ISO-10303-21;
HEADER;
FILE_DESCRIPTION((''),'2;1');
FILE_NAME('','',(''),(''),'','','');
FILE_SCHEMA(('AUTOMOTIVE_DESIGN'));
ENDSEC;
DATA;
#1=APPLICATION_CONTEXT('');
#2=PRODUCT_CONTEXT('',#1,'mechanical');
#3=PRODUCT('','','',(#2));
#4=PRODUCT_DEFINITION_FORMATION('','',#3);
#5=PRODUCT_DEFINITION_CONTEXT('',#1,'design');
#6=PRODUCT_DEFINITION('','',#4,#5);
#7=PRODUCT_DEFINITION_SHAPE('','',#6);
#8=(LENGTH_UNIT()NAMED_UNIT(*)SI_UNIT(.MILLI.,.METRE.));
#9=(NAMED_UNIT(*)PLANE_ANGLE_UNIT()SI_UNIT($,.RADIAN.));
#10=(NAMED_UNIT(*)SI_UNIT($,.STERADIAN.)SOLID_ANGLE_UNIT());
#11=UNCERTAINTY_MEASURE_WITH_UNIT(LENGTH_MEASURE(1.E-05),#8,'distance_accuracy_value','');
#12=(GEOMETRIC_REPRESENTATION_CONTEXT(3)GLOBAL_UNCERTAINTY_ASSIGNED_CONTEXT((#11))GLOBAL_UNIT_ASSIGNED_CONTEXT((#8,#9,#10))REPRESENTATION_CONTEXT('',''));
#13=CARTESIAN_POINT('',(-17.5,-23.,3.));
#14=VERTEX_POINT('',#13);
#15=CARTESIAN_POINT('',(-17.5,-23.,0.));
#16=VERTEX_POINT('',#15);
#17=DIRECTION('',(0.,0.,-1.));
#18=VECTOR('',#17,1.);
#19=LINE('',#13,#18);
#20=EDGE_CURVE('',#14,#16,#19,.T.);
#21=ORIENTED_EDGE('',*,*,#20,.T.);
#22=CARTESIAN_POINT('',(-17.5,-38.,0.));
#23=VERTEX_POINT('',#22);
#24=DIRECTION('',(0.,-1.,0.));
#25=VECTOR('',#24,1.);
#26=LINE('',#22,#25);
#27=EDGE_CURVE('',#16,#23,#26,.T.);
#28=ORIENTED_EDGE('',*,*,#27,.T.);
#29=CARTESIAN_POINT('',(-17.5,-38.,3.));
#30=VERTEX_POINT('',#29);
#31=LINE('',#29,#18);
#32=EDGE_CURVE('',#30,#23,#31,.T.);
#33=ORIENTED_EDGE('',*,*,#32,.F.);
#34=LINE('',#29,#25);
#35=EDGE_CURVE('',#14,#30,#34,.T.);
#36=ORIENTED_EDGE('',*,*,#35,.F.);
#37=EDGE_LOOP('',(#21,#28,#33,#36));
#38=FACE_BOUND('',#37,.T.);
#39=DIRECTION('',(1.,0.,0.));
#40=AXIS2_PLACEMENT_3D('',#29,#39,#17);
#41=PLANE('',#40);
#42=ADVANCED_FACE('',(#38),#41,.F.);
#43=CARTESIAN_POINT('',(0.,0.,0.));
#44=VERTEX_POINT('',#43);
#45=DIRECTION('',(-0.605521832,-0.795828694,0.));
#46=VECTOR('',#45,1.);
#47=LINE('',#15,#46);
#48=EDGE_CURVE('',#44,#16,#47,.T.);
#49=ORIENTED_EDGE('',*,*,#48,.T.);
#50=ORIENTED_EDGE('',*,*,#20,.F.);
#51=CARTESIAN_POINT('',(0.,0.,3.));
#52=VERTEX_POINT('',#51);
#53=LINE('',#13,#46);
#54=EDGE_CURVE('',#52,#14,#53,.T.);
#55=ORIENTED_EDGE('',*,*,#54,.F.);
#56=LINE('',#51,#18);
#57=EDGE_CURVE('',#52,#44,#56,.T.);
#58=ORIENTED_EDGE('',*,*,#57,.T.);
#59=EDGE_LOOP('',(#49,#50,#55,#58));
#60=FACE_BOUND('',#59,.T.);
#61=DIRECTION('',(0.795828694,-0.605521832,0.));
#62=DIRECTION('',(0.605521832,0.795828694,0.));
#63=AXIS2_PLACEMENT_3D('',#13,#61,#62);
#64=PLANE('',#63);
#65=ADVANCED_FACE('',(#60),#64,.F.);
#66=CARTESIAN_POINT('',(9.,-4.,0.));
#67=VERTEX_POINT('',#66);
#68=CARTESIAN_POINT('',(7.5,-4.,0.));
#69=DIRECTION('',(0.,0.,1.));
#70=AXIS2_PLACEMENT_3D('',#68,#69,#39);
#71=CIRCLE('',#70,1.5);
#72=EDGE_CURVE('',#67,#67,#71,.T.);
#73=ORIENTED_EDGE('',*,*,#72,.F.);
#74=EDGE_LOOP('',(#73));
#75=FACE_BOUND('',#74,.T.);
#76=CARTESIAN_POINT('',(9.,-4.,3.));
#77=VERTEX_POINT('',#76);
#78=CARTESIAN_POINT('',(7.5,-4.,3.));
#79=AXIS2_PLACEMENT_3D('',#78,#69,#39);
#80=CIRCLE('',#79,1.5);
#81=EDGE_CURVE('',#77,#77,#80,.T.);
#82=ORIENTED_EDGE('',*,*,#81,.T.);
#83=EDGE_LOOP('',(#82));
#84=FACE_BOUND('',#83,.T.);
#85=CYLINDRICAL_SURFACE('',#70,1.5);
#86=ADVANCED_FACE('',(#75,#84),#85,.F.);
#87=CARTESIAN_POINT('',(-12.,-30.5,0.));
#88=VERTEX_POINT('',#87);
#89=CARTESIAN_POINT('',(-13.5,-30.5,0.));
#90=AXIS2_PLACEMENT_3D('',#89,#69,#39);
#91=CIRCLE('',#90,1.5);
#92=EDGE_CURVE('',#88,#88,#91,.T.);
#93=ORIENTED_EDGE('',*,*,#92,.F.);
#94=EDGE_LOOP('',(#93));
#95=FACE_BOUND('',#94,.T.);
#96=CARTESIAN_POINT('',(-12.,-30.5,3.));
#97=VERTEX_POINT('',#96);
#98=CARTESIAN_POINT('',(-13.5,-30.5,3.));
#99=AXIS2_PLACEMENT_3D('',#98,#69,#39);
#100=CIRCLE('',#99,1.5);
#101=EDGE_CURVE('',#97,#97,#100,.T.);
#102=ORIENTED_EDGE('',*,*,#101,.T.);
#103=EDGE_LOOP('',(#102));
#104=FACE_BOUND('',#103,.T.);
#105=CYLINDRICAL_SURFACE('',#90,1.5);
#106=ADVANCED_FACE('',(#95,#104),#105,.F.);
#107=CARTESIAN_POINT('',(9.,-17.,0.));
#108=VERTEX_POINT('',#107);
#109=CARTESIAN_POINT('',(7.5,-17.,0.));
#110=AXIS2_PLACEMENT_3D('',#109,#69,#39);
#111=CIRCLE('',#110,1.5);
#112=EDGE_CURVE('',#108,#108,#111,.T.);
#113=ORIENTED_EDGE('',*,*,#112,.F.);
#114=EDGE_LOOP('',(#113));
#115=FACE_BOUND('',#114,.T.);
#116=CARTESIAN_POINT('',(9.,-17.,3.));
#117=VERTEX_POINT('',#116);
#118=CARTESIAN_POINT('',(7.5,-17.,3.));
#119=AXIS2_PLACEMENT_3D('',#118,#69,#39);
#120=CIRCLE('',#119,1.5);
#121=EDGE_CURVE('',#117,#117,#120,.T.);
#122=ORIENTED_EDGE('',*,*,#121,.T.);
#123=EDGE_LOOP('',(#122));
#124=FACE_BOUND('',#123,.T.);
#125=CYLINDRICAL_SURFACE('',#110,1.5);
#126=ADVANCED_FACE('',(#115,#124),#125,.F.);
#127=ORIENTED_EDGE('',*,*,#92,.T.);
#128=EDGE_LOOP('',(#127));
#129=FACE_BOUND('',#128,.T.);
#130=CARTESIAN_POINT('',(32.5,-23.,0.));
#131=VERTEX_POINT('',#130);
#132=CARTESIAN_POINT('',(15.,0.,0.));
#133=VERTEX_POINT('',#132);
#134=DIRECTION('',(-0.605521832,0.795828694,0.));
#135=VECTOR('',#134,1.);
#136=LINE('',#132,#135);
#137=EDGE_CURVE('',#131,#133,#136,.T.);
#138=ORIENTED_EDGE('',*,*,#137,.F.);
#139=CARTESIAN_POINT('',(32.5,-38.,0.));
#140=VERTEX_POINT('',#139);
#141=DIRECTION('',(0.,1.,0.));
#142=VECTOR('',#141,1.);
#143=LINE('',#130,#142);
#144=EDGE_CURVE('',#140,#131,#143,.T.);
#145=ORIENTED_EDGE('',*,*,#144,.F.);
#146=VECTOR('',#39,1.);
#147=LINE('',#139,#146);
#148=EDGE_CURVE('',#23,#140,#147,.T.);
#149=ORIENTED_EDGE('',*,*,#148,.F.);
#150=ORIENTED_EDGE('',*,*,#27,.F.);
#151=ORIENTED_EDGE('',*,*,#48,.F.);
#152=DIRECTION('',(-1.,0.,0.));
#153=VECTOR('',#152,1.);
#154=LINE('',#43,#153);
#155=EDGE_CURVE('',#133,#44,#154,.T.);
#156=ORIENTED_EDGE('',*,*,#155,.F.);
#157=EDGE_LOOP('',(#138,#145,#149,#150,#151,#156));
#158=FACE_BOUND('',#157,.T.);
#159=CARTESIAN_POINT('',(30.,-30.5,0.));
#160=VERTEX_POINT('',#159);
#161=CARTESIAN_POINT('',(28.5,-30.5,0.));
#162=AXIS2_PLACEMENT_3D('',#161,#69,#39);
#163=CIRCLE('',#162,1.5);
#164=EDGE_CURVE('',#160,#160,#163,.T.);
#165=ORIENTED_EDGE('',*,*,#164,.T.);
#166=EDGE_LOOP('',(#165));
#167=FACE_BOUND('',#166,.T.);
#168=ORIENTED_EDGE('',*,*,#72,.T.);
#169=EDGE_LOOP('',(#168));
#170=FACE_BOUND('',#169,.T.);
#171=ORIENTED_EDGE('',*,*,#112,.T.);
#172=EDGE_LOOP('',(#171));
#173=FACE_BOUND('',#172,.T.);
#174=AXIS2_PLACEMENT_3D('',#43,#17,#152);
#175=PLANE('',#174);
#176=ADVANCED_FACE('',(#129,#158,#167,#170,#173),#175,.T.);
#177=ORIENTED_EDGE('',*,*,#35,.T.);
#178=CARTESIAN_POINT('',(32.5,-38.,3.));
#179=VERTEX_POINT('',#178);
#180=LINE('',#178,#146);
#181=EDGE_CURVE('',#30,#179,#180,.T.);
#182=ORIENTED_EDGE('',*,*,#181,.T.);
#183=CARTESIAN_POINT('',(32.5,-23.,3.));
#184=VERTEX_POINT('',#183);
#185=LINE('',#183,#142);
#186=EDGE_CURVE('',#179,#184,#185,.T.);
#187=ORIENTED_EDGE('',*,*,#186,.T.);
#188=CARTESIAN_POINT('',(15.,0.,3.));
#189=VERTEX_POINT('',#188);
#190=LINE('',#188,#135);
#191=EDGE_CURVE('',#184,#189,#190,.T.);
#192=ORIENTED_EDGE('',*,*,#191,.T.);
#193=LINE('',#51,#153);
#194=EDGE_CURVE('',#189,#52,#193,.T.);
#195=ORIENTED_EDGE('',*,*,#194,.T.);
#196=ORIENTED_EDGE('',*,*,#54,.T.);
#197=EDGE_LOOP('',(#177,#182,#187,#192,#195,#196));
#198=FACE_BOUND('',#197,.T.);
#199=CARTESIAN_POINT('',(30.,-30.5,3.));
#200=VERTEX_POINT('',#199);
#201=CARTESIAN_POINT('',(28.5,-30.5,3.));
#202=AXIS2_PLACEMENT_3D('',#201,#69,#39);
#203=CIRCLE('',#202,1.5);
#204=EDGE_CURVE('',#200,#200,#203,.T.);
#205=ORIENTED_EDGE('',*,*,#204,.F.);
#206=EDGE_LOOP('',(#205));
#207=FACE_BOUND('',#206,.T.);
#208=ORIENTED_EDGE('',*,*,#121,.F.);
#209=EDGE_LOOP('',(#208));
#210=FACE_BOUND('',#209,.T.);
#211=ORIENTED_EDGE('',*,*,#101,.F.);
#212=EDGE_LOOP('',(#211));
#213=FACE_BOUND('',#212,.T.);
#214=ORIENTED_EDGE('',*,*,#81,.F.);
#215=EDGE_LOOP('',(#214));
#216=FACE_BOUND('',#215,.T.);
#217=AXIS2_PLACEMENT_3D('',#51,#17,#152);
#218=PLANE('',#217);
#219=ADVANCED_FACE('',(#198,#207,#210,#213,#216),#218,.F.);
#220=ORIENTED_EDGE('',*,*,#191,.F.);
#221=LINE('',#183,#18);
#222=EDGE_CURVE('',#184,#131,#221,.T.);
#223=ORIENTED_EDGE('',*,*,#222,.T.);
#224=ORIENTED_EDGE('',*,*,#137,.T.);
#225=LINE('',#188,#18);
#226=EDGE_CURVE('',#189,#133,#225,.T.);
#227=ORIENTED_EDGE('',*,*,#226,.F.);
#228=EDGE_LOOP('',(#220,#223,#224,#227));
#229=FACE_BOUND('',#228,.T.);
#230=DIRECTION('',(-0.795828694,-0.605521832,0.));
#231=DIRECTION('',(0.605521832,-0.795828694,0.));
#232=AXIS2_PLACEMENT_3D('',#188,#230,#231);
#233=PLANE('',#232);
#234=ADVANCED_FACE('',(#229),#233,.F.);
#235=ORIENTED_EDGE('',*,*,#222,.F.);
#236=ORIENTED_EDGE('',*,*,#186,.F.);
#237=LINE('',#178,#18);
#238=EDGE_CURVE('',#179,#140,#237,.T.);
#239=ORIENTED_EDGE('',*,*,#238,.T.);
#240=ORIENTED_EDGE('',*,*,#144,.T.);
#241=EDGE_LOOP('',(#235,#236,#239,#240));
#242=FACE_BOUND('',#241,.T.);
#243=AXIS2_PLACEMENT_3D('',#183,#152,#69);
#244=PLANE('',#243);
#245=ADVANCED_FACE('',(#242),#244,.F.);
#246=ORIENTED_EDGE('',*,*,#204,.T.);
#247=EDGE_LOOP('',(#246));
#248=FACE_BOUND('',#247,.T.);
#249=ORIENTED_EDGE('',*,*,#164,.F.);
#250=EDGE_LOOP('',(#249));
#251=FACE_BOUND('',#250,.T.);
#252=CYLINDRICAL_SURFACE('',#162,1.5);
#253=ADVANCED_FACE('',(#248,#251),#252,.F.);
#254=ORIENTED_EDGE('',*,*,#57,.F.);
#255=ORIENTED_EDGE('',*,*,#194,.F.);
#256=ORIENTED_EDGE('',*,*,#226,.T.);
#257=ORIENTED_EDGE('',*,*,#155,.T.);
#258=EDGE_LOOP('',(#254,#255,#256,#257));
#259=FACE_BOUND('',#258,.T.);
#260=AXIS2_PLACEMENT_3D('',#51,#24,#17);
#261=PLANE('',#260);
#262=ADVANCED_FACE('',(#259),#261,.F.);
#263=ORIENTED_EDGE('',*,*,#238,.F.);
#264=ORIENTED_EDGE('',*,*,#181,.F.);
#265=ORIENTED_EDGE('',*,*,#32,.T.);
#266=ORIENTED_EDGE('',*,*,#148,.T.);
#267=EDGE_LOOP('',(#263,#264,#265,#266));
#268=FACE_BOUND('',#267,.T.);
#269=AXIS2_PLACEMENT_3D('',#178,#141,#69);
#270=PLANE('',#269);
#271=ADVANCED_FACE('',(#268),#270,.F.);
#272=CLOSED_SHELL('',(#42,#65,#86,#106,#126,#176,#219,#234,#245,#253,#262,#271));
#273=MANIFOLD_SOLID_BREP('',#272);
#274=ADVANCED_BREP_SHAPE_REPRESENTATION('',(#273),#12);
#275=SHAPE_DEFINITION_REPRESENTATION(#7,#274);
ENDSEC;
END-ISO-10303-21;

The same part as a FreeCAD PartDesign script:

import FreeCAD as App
import Part
import Sketcher
from FreeCAD import Vector
Q = App.Units.Quantity


def add_polygon(sketch, points):
    """Adds a closed chain of lines whose ends are joined by coincident constraints."""
    first, n = sketch.GeometryCount, len(points)
    for a, b in zip(points, points[1:] + points[:1]):
        sketch.addGeometry(Part.LineSegment(App.Vector(*a, 0), App.Vector(*b, 0)), False)
    for i in range(n):
        sketch.addConstraint(Sketcher.Constraint("Coincident", first + i, 2, first + (i + 1) % n, 1))

doc = App.newDocument("Part")
params = doc.addObject("Spreadsheet::Sheet", "Params")
for row, (alias, value) in enumerate([
    ("sketch1_width", "15 mm"),
    ("sketch1_width2", "50 mm"),
    ("pad1_length", "3 mm"),
    ("sketch2_diameter", "3 mm"),
    ("pocket1_length", "3 mm"),
], start=1):
    params.set(f"A{row}", alias)
    params.set(f"B{row}", "=" + value)
    params.setAlias(f"B{row}", alias)

body = doc.addObject("PartDesign::Body", "Body")

# Sketch on XY plane
sketch1 = body.newObject("Sketcher::SketchObject", "Sketch")
sketch1.AttachmentSupport = (doc.getObject("XY_Plane"), [""])
sketch1.MapMode = "FlatFace"
add_polygon(sketch1, [(15, 0), (0, 0), (-18, -23), (-18, -38), (32, -38), (32, -23)])  # lines 0-5
sketch1.addConstraint(Sketcher.Constraint("Horizontal", 0))
sketch1.addConstraint(Sketcher.Constraint("Vertical", 2))
sketch1.addConstraint(Sketcher.Constraint("Horizontal", 3))
sketch1.addConstraint(Sketcher.Constraint("Vertical", 4))
sketch1.addConstraint(Sketcher.Constraint("Coincident", 0, 2, -1, 1))
sketch1.addConstraint(Sketcher.Constraint("Horizontal", 1, 2, 4, 2))
sketch1.addConstraint(Sketcher.Constraint("Equal", 0, 2))
sketch1.addConstraint(Sketcher.Constraint("Equal", 1, 5))
sketch1.addConstraint(Sketcher.Constraint("DistanceX", 0, 2, 0, 1, Q("15 mm")))
sketch1.addConstraint(Sketcher.Constraint("DistanceX", 3, 1, 3, 2, Q("50 mm")))
sketch1.addConstraint(Sketcher.Constraint("DistanceY", 1, 2, -1, 1, Q("23 mm")))
sketch1.setExpression("Constraints[14]", "Params.sketch1_width")
sketch1.setExpression("Constraints[15]", "Params.sketch1_width2")
pad1 = body.newObject("PartDesign::Pad", "Pad")
pad1.Profile = sketch1
pad1.setExpression("Length", "Params.pad1_length")

# Sketch on XY plane
sketch2 = body.newObject("Sketcher::SketchObject", "Sketch001")
sketch2.AttachmentSupport = (doc.getObject("XY_Plane"), [""])
sketch2.MapMode = "FlatFace"
sketch2.AttachmentOffset = App.Placement(Vector(0, 0, 3), App.Rotation())
sketch2.addGeometry(Part.Circle(Vector(7.5, -4, 0), Vector(0, 0, 1), 1.5), False)
sketch2.addGeometry(Part.Circle(Vector(7.5, -17, 0), Vector(0, 0, 1), 1.5), False)
sketch2.addGeometry(Part.Circle(Vector(28.5, -30.5, 0), Vector(0, 0, 1), 1.5), False)
sketch2.addGeometry(Part.Circle(Vector(-13.5, -30.5, 0), Vector(0, 0, 1), 1.5), False)
sketch2.addConstraint(Sketcher.Constraint("Equal", 0, 1))
sketch2.addConstraint(Sketcher.Constraint("Equal", 1, 2))
sketch2.addConstraint(Sketcher.Constraint("Equal", 2, 3))
sketch2.addConstraint(Sketcher.Constraint("Horizontal", 2, 3, 3, 3))
sketch2.addConstraint(Sketcher.Constraint("Vertical", 0, 3, 1, 3))
sketch2.addConstraint(Sketcher.Constraint("Diameter", 0, Q("3 mm")))
sketch2.addConstraint(Sketcher.Constraint("DistanceY", 0, 3, -1, 1, Q("4 mm")))
sketch2.addConstraint(Sketcher.Constraint("DistanceY", 1, 3, -1, 1, Q("17 mm")))
sketch2.addConstraint(Sketcher.Constraint("DistanceX", 1, 3, 2, 3, Q("21 mm")))
sketch2.addConstraint(Sketcher.Constraint("DistanceX", 3, 3, 1, 3, Q("21 mm")))
sketch2.addConstraint(Sketcher.Constraint("DistanceX", -1, 1, 0, 3, Q("7.5 mm")))
sketch2.addConstraint(Sketcher.Constraint("DistanceY", 2, 3, -1, 1, Q("30.5 mm")))
sketch2.setExpression("Constraints[5]", "Params.sketch2_diameter")
pocket1 = body.newObject("PartDesign::Pocket", "Pocket")
pocket1.Profile = sketch2
pocket1.setExpression("Length", "Params.pocket1_length")

doc.recompute()
